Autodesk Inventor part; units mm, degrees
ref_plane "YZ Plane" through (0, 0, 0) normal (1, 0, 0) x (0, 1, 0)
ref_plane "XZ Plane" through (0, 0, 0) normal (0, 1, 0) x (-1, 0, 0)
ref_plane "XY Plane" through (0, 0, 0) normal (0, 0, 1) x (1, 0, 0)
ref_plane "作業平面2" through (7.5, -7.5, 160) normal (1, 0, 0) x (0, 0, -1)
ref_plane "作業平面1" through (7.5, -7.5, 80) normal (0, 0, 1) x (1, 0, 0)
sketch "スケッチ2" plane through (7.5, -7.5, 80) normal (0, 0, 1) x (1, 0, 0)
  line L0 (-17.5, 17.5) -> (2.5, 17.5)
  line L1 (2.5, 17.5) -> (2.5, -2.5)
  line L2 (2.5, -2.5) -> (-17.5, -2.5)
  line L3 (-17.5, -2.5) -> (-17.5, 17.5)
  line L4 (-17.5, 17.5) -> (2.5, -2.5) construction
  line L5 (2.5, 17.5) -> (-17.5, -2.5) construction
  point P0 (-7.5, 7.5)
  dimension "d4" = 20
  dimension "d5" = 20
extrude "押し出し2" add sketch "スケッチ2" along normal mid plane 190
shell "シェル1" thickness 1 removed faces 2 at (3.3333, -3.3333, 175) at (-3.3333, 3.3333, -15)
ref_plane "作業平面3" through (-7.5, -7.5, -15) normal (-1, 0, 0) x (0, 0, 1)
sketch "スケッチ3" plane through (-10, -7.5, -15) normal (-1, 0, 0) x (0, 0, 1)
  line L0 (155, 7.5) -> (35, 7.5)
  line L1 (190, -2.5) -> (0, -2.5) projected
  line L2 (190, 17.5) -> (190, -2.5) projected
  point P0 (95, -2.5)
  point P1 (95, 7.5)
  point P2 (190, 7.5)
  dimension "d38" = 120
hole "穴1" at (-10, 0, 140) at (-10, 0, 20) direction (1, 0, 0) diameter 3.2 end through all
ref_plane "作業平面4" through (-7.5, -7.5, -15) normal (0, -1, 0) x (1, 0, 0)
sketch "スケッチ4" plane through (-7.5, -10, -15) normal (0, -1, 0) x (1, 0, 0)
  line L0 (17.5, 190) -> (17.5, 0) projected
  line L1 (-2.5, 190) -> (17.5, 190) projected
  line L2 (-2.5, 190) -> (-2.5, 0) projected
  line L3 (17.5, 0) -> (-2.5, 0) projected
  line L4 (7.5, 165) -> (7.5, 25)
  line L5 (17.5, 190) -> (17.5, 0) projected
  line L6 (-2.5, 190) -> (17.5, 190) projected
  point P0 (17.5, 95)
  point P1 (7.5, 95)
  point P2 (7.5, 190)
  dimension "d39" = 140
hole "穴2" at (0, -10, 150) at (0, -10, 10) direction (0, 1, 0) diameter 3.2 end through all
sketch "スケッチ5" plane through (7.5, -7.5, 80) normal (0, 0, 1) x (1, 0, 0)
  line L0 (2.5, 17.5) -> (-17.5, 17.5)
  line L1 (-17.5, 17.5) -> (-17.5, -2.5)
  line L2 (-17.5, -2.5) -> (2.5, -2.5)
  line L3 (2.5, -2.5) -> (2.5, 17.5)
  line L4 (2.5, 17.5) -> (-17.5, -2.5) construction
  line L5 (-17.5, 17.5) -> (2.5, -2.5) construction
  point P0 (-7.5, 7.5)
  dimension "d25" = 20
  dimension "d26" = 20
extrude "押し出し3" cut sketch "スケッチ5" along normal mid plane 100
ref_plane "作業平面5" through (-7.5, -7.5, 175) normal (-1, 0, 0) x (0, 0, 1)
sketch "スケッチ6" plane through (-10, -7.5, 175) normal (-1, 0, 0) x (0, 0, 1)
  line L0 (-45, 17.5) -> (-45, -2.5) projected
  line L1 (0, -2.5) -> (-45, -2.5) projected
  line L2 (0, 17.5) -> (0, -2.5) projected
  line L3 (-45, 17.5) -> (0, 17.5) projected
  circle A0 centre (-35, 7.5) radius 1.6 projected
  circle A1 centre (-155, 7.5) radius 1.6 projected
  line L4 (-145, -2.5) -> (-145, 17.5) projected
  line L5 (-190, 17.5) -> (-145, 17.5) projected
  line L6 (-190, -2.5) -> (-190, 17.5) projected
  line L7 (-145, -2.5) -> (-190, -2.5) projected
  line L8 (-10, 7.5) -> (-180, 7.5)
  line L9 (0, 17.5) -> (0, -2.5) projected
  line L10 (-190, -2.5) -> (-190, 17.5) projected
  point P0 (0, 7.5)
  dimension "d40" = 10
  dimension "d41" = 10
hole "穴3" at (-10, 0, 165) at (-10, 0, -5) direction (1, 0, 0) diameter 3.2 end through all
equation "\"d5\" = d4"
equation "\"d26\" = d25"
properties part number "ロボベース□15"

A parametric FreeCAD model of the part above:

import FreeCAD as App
import Part
import Sketcher
from FreeCAD import Vector


def faces_at(feature, points):
    """Names of the faces that lie closest to the given points."""
    faces = feature.Shape.Faces
    near = lambda p: min(range(len(faces)), key=lambda i: faces[i].distToShape(Part.Vertex(*p))[0])
    return sorted({f"Face{near(p) + 1}" for p in points})

doc = App.newDocument("Part")
body = doc.addObject("PartDesign::Body", "Body")
body.AllowCompound = True

sketch1 = body.newObject("Sketcher::SketchObject", "Sketch")
sketch1.AttachmentSupport = (doc.getObject("XY_Plane"), [""])
sketch1.MapMode = "FlatFace"
sketch1.AttachmentOffset = App.Placement(Vector(0, 0, 80), App.Rotation())
sketch1.addGeometry([
    Part.LineSegment(Vector(10, 10, 0), Vector(-10, 10, 0)),
    Part.LineSegment(Vector(-10, 10, 0), Vector(-10, -10, 0)),
    Part.LineSegment(Vector(-10, -10, 0), Vector(10, -10, 0)),
    Part.LineSegment(Vector(10, -10, 0), Vector(10, 10, 0)),
], False)
sketch1.addConstraint([
    Sketcher.Constraint("Coincident", 0, 2, 1, 1),
    Sketcher.Constraint("Coincident", 1, 2, 2, 1),
    Sketcher.Constraint("Coincident", 2, 2, 3, 1),
    Sketcher.Constraint("Coincident", 3, 2, 0, 1),
    Sketcher.Constraint("Horizontal", 0),
    Sketcher.Constraint("Vertical", 1),
    Sketcher.Constraint("Horizontal", 2),
    Sketcher.Constraint("Vertical", 3),
    Sketcher.Constraint("Symmetric", 0, 2, 2, 2, -1, 1),
    Sketcher.Constraint("Equal", 2, 1),
    Sketcher.Constraint("DistanceX", 0, 2, 0, 1, 20.0),
])
pad1 = body.newObject("PartDesign::Pad", "Pad")
pad1.Profile = sketch1
pad1.Length = 190
pad1.Midplane = True
doc.recompute()

thickness = body.newObject("PartDesign::Thickness", "Thickness")
thickness.Base = (pad1, faces_at(pad1, [(3.333, -3.333, 175), (-3.333, 3.333, -15)]))
thickness.Value = 1
thickness.Reversed = True
thickness.Join = "Intersection"

sketch2 = body.newObject("Sketcher::SketchObject", "Sketch001")
sketch2.AttachmentSupport = (doc.getObject("YZ_Plane"), [""])
sketch2.MapMode = "FlatFace"
sketch2.AttachmentOffset = App.Placement(Vector(0, 0, -10), App.Rotation())
sketch2.addGeometry([
    Part.Circle(Vector(0, 140, 0), Vector(0, 0, 1), 1.6),
    Part.Circle(Vector(0, 20, 0), Vector(0, 0, 1), 1.6),
], False)
sketch2.addConstraint([
    Sketcher.Constraint("Equal", 0, 1),
    Sketcher.Constraint("PointOnObject", 0, 3, -2),
    Sketcher.Constraint("PointOnObject", 1, 3, -2),
    Sketcher.Constraint("Diameter", 0, 3.2),
    Sketcher.Constraint("DistanceY", -1, 1, 0, 3, 140.0),
    Sketcher.Constraint("DistanceY", -1, 1, 1, 3, 20.0),
])
doc.recompute()
hole = body.newObject("PartDesign::Hole", "Hole")
hole.Profile = sketch2
hole.ThreadType = "None"
hole.Diameter = 3.2
hole.DepthType = "ThroughAll"
hole.Reversed = True

sketch3 = body.newObject("Sketcher::SketchObject", "Sketch002")
sketch3.AttachmentSupport = (doc.getObject("XZ_Plane"), [""])
sketch3.MapMode = "FlatFace"
sketch3.AttachmentOffset = App.Placement(Vector(0, 0, 10), App.Rotation())
sketch3.addGeometry([
    Part.Circle(Vector(0, 150, 0), Vector(0, 0, 1), 1.6),
    Part.Circle(Vector(0, 10, 0), Vector(0, 0, 1), 1.6),
], False)
sketch3.addConstraint([
    Sketcher.Constraint("Equal", 0, 1),
    Sketcher.Constraint("PointOnObject", 0, 3, -2),
    Sketcher.Constraint("PointOnObject", 1, 3, -2),
    Sketcher.Constraint("Diameter", 0, 3.2),
    Sketcher.Constraint("DistanceY", -1, 1, 0, 3, 150.0),
    Sketcher.Constraint("DistanceY", -1, 1, 1, 3, 10.0),
])
doc.recompute()
hole2 = body.newObject("PartDesign::Hole", "Hole001")
hole2.Profile = sketch3
hole2.ThreadType = "None"
hole2.Diameter = 3.2
hole2.DepthType = "ThroughAll"

sketch4 = body.newObject("Sketcher::SketchObject", "Sketch003")
sketch4.AttachmentSupport = (doc.getObject("XY_Plane"), [""])
sketch4.MapMode = "FlatFace"
sketch4.AttachmentOffset = App.Placement(Vector(0, 0, 80), App.Rotation())
sketch4.addGeometry([
    Part.LineSegment(Vector(10, -10, 0), Vector(10, 10, 0)),
    Part.LineSegment(Vector(10, 10, 0), Vector(-10, 10, 0)),
    Part.LineSegment(Vector(-10, 10, 0), Vector(-10, -10, 0)),
    Part.LineSegment(Vector(-10, -10, 0), Vector(10, -10, 0)),
], False)
sketch4.addConstraint([
    Sketcher.Constraint("Coincident", 0, 2, 1, 1),
    Sketcher.Constraint("Coincident", 1, 2, 2, 1),
    Sketcher.Constraint("Coincident", 2, 2, 3, 1),
    Sketcher.Constraint("Coincident", 3, 2, 0, 1),
    Sketcher.Constraint("Vertical", 0),
    Sketcher.Constraint("Horizontal", 1),
    Sketcher.Constraint("Vertical", 2),
    Sketcher.Constraint("Horizontal", 3),
    Sketcher.Constraint("Symmetric", 0, 2, 2, 2, -1, 1),
    Sketcher.Constraint("Equal", 3, 0),
    Sketcher.Constraint("DistanceX", 1, 2, 1, 1, 20.0),
])
pocket1 = body.newObject("PartDesign::Pocket", "Pocket")
pocket1.Profile = sketch4
pocket1.Length = 100
pocket1.Midplane = True

sketch5 = body.newObject("Sketcher::SketchObject", "Sketch004")
sketch5.AttachmentSupport = (doc.getObject("YZ_Plane"), [""])
sketch5.MapMode = "FlatFace"
sketch5.AttachmentOffset = App.Placement(Vector(0, 0, -10), App.Rotation())
sketch5.addGeometry([
    Part.Circle(Vector(0, 165, 0), Vector(0, 0, 1), 1.6),
    Part.Circle(Vector(0, -5, 0), Vector(0, 0, 1), 1.6),
], False)
sketch5.addConstraint([
    Sketcher.Constraint("Equal", 0, 1),
    Sketcher.Constraint("PointOnObject", 0, 3, -2),
    Sketcher.Constraint("PointOnObject", 1, 3, -2),
    Sketcher.Constraint("Diameter", 0, 3.2),
    Sketcher.Constraint("DistanceY", -1, 1, 0, 3, 165.0),
    Sketcher.Constraint("DistanceY", 1, 3, -1, 1, 5.0),
])
doc.recompute()
hole3 = body.newObject("PartDesign::Hole", "Hole002")
hole3.Profile = sketch5
hole3.ThreadType = "None"
hole3.Diameter = 3.2
hole3.DepthType = "ThroughAll"
hole3.Reversed = True

doc.recompute()
